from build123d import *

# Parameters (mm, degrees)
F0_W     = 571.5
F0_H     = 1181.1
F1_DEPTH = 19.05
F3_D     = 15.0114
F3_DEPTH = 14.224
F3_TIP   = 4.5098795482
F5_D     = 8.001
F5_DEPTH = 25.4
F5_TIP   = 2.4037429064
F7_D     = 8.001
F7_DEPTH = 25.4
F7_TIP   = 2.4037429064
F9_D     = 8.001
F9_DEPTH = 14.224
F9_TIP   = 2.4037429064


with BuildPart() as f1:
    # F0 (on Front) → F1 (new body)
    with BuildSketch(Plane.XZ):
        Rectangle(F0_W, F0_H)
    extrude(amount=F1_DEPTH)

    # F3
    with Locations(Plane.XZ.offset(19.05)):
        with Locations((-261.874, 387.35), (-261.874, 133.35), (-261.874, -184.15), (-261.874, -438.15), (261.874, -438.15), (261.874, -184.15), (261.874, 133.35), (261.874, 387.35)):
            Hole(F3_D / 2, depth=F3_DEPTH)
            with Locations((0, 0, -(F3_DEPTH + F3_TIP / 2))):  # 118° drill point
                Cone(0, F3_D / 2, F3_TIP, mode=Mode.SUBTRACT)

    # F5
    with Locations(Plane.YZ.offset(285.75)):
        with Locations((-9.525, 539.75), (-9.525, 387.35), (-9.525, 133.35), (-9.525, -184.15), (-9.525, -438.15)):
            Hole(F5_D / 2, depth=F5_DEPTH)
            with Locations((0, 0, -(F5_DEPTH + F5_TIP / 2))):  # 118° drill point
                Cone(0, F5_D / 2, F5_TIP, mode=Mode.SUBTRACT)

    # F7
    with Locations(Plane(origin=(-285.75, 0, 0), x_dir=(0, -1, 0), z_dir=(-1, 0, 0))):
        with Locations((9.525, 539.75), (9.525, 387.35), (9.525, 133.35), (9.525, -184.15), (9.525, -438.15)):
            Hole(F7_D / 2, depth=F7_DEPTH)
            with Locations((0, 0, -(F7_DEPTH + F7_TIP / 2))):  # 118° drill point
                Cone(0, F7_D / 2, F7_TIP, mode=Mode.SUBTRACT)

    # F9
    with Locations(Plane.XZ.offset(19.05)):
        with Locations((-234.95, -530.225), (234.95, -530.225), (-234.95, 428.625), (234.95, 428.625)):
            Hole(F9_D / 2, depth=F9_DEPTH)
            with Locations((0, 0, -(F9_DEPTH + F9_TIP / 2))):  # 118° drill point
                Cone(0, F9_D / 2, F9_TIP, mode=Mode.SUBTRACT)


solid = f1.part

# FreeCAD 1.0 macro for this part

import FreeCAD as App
import Part
import Sketcher
from FreeCAD import Vector
Q = App.Units.Quantity


def add_polygon(sketch, points):
    """Adds a closed chain of lines whose ends are joined by coincident constraints."""
    first, n = sketch.GeometryCount, len(points)
    for a, b in zip(points, points[1:] + points[:1]):
        sketch.addGeometry(Part.LineSegment(App.Vector(*a, 0), App.Vector(*b, 0)), False)
    for i in range(n):
        sketch.addConstraint(Sketcher.Constraint("Coincident", first + i, 2, first + (i + 1) % n, 1))

doc = App.newDocument("Part")
body = doc.addObject("PartDesign::Body", "Body")

sketch1 = doc.addObject("Sketcher::SketchObject", "Sketch")
body.addObject(sketch1)
sketch1.AttachmentSupport = (doc.XZ_Plane, [""])
sketch1.MapMode = "FlatFace"
add_polygon(sketch1, [(-286, 591), (-286, -591), (286, -591), (286, 591)])
sketch1.addConstraint(Sketcher.Constraint("Vertical", 0))
sketch1.addConstraint(Sketcher.Constraint("Horizontal", 1))
sketch1.addConstraint(Sketcher.Constraint("Vertical", 2))
sketch1.addConstraint(Sketcher.Constraint("Horizontal", 3))
sketch1.addConstraint(Sketcher.Constraint("Symmetric", 0, 2, 2, 2, -1, 1))
sketch1.addConstraint(Sketcher.Constraint("DistanceX", 1, 1, 1, 2, Q("22.5 in")))
sketch1.addConstraint(Sketcher.Constraint("DistanceY", 0, 2, 0, 1, Q("46.5 in")))
pad1 = doc.addObject("PartDesign::Pad", "Pad")
body.addObject(pad1)
pad1.Profile = sketch1
pad1.Length = Q("0.75 in")

sketch2 = doc.addObject("Sketcher::SketchObject", "Sketch001")
body.addObject(sketch2)
sketch2.AttachmentSupport = (doc.XZ_Plane, [""])
sketch2.MapMode = "FlatFace"
sketch2.AttachmentOffset = App.Placement(Vector(0, 0, 0.75 * 25.4), App.Rotation())
sketch2.addGeometry(Part.Circle(Vector(-262, 387, 0), Vector(0, 0, 1), 8), False)
sketch2.addGeometry(Part.Circle(Vector(-262, 133, 0), Vector(0, 0, 1), 8), False)
sketch2.addGeometry(Part.Circle(Vector(-262, -184, 0), Vector(0, 0, 1), 8), False)
sketch2.addGeometry(Part.Circle(Vector(-262, -438, 0), Vector(0, 0, 1), 8), False)
sketch2.addGeometry(Part.Circle(Vector(262, -438, 0), Vector(0, 0, 1), 8), False)
sketch2.addGeometry(Part.Circle(Vector(262, -184, 0), Vector(0, 0, 1), 8), False)
sketch2.addGeometry(Part.Circle(Vector(262, 133, 0), Vector(0, 0, 1), 8), False)
sketch2.addGeometry(Part.Circle(Vector(262, 387, 0), Vector(0, 0, 1), 8), False)
sketch2.addConstraint(Sketcher.Constraint("Equal", 0, 1))
sketch2.addConstraint(Sketcher.Constraint("Equal", 1, 2))
sketch2.addConstraint(Sketcher.Constraint("Equal", 2, 3))
sketch2.addConstraint(Sketcher.Constraint("Equal", 3, 4))
sketch2.addConstraint(Sketcher.Constraint("Equal", 4, 5))
sketch2.addConstraint(Sketcher.Constraint("Equal", 5, 6))
sketch2.addConstraint(Sketcher.Constraint("Equal", 6, 7))
sketch2.addConstraint(Sketcher.Constraint("Symmetric", 3, 3, 4, 3, -2))
sketch2.addConstraint(Sketcher.Constraint("Symmetric", 2, 3, 5, 3, -2))
sketch2.addConstraint(Sketcher.Constraint("Symmetric", 1, 3, 6, 3, -2))
sketch2.addConstraint(Sketcher.Constraint("Symmetric", 0, 3, 7, 3, -2))
sketch2.addConstraint(Sketcher.Constraint("Vertical", 0, 3, 1, 3))
sketch2.addConstraint(Sketcher.Constraint("Vertical", 1, 3, 2, 3))
sketch2.addConstraint(Sketcher.Constraint("Vertical", 2, 3, 3, 3))
sketch2.addConstraint(Sketcher.Constraint("Diameter", 0, Q("0.591 in")))
sketch2.addConstraint(Sketcher.Constraint("DistanceY", 1, 3, 0, 3, Q("10 in")))
sketch2.addConstraint(Sketcher.Constraint("DistanceY", 3, 3, 2, 3, Q("10 in")))
sketch2.addConstraint(Sketcher.Constraint("DistanceY", 2, 3, 1, 3, Q("12.5 in")))
sketch2.addConstraint(Sketcher.Constraint("DistanceX", 0, 3, -1, 1, Q("10.31 in")))
sketch2.addConstraint(Sketcher.Constraint("DistanceY", -1, 1, 0, 3, Q("15.25 in")))
doc.recompute()
hole = doc.addObject("PartDesign::Hole", "Hole")
body.addObject(hole)
hole.Profile = sketch2
hole.ThreadType = "None"
hole.Diameter = Q("0.591 in")
hole.DepthType = "Dimension"
hole.Depth = Q("0.56 in")
hole.DrillPoint = "Angled"
hole.DrillPointAngle = 118

sketch3 = doc.addObject("Sketcher::SketchObject", "Sketch002")
body.addObject(sketch3)
sketch3.AttachmentSupport = (doc.YZ_Plane, [""])
sketch3.MapMode = "FlatFace"
sketch3.AttachmentOffset = App.Placement(Vector(0, 0, 11.25 * 25.4), App.Rotation())
sketch3.addGeometry(Part.Circle(Vector(-9.5, 539.8, 0), Vector(0, 0, 1), 4), False)
sketch3.addGeometry(Part.Circle(Vector(-9.5, 387.4, 0), Vector(0, 0, 1), 4), False)
sketch3.addGeometry(Part.Circle(Vector(-9.5, 133.3, 0), Vector(0, 0, 1), 4), False)
sketch3.addGeometry(Part.Circle(Vector(-9.5, -184.2, 0), Vector(0, 0, 1), 4), False)
sketch3.addGeometry(Part.Circle(Vector(-9.5, -438.1, 0), Vector(0, 0, 1), 4), False)
sketch3.addConstraint(Sketcher.Constraint("Equal", 0, 1))
sketch3.addConstraint(Sketcher.Constraint("Equal", 1, 2))
sketch3.addConstraint(Sketcher.Constraint("Equal", 2, 3))
sketch3.addConstraint(Sketcher.Constraint("Equal", 3, 4))
sketch3.addConstraint(Sketcher.Constraint("Vertical", 0, 3, 1, 3))
sketch3.addConstraint(Sketcher.Constraint("Vertical", 1, 3, 2, 3))
sketch3.addConstraint(Sketcher.Constraint("Vertical", 2, 3, 3, 3))
sketch3.addConstraint(Sketcher.Constraint("Vertical", 3, 3, 4, 3))
sketch3.addConstraint(Sketcher.Constraint("Diameter", 0, Q("0.315 in")))
sketch3.addConstraint(Sketcher.Constraint("DistanceY", 1, 3, 0, 3, Q("6 in")))
sketch3.addConstraint(Sketcher.Constraint("DistanceY", 2, 3, 1, 3, Q("10 in")))
sketch3.addConstraint(Sketcher.Constraint("DistanceY", 4, 3, 3, 3, Q("10 in")))
sketch3.addConstraint(Sketcher.Constraint("DistanceY", 3, 3, 2, 3, Q("12.5 in")))
sketch3.addConstraint(Sketcher.Constraint("DistanceY", -1, 1, 0, 3, Q("21.25 in")))
sketch3.addConstraint(Sketcher.Constraint("DistanceX", 0, 3, -1, 1, Q("0.375 in")))
doc.recompute()
hole2 = doc.addObject("PartDesign::Hole", "Hole001")
body.addObject(hole2)
hole2.Profile = sketch3
hole2.ThreadType = "None"
hole2.Diameter = Q("0.315 in")
hole2.DepthType = "Dimension"
hole2.Depth = Q("1 in")
hole2.DrillPoint = "Angled"
hole2.DrillPointAngle = 118

sketch4 = doc.addObject("Sketcher::SketchObject", "Sketch003")
body.addObject(sketch4)
sketch4.AttachmentSupport = (doc.YZ_Plane, [""])
sketch4.MapMode = "FlatFace"
sketch4.AttachmentOffset = App.Placement(Vector(0, 0, -11.25 * 25.4), App.Rotation())
sketch4.addGeometry(Part.Circle(Vector(-9.5, 539.8, 0), Vector(0, 0, 1), 4), False)
sketch4.addGeometry(Part.Circle(Vector(-9.5, 387.4, 0), Vector(0, 0, 1), 4), False)
sketch4.addGeometry(Part.Circle(Vector(-9.5, 133.3, 0), Vector(0, 0, 1), 4), False)
sketch4.addGeometry(Part.Circle(Vector(-9.5, -184.2, 0), Vector(0, 0, 1), 4), False)
sketch4.addGeometry(Part.Circle(Vector(-9.5, -438.1, 0), Vector(0, 0, 1), 4), False)
sketch4.addConstraint(Sketcher.Constraint("Equal", 0, 1))
sketch4.addConstraint(Sketcher.Constraint("Equal", 1, 2))
sketch4.addConstraint(Sketcher.Constraint("Equal", 2, 3))
sketch4.addConstraint(Sketcher.Constraint("Equal", 3, 4))
sketch4.addConstraint(Sketcher.Constraint("Vertical", 0, 3, 1, 3))
sketch4.addConstraint(Sketcher.Constraint("Vertical", 1, 3, 2, 3))
sketch4.addConstraint(Sketcher.Constraint("Vertical", 2, 3, 3, 3))
sketch4.addConstraint(Sketcher.Constraint("Vertical", 3, 3, 4, 3))
sketch4.addConstraint(Sketcher.Constraint("Diameter", 0, Q("0.315 in")))
sketch4.addConstraint(Sketcher.Constraint("DistanceY", 1, 3, 0, 3, Q("6 in")))
sketch4.addConstraint(Sketcher.Constraint("DistanceY", 2, 3, 1, 3, Q("10 in")))
sketch4.addConstraint(Sketcher.Constraint("DistanceY", 4, 3, 3, 3, Q("10 in")))
sketch4.addConstraint(Sketcher.Constraint("DistanceY", 3, 3, 2, 3, Q("12.5 in")))
sketch4.addConstraint(Sketcher.Constraint("DistanceY", -1, 1, 0, 3, Q("21.25 in")))
sketch4.addConstraint(Sketcher.Constraint("DistanceX", 0, 3, -1, 1, Q("0.375 in")))
doc.recompute()
hole3 = doc.addObject("PartDesign::Hole", "Hole002")
body.addObject(hole3)
hole3.Profile = sketch4
hole3.ThreadType = "None"
hole3.Diameter = Q("0.315 in")
hole3.DepthType = "Dimension"
hole3.Depth = Q("1 in")
hole3.DrillPoint = "Angled"
hole3.DrillPointAngle = 118
hole3.Reversed = True

sketch5 = doc.addObject("Sketcher::SketchObject", "Sketch004")
body.addObject(sketch5)
sketch5.AttachmentSupport = (doc.XZ_Plane, [""])
sketch5.MapMode = "FlatFace"
sketch5.AttachmentOffset = App.Placement(Vector(0, 0, 0.75 * 25.4), App.Rotation())
sketch5.addGeometry(Part.Circle(Vector(-234.9, -530.2, 0), Vector(0, 0, 1), 4), False)
sketch5.addGeometry(Part.Circle(Vector(234.9, -530.2, 0), Vector(0, 0, 1), 4), False)
sketch5.addGeometry(Part.Circle(Vector(-234.9, 428.6, 0), Vector(0, 0, 1), 4), False)
sketch5.addGeometry(Part.Circle(Vector(234.9, 428.6, 0), Vector(0, 0, 1), 4), False)
sketch5.addConstraint(Sketcher.Constraint("Equal", 0, 1))
sketch5.addConstraint(Sketcher.Constraint("Equal", 1, 2))
sketch5.addConstraint(Sketcher.Constraint("Equal", 2, 3))
sketch5.addConstraint(Sketcher.Constraint("Symmetric", 0, 3, 1, 3, -2))
sketch5.addConstraint(Sketcher.Constraint("Symmetric", 2, 3, 3, 3, -2))
sketch5.addConstraint(Sketcher.Constraint("Vertical", 0, 3, 2, 3))
sketch5.addConstraint(Sketcher.Constraint("Diameter", 0, Q("0.315 in")))
sketch5.addConstraint(Sketcher.Constraint("DistanceX", 0, 3, 1, 3, Q("18.5 in")))
sketch5.addConstraint(Sketcher.Constraint("DistanceY", 0, 3, 2, 3, Q("37.75 in")))
sketch5.addConstraint(Sketcher.Constraint("DistanceY", 0, 3, -1, 1, Q("20.875 in")))
doc.recompute()
hole4 = doc.addObject("PartDesign::Hole", "Hole003")
body.addObject(hole4)
hole4.Profile = sketch5
hole4.ThreadType = "None"
hole4.Diameter = Q("0.315 in")
hole4.DepthType = "Dimension"
hole4.Depth = Q("0.56 in")
hole4.DrillPoint = "Angled"
hole4.DrillPointAngle = 118

doc.recompute()
